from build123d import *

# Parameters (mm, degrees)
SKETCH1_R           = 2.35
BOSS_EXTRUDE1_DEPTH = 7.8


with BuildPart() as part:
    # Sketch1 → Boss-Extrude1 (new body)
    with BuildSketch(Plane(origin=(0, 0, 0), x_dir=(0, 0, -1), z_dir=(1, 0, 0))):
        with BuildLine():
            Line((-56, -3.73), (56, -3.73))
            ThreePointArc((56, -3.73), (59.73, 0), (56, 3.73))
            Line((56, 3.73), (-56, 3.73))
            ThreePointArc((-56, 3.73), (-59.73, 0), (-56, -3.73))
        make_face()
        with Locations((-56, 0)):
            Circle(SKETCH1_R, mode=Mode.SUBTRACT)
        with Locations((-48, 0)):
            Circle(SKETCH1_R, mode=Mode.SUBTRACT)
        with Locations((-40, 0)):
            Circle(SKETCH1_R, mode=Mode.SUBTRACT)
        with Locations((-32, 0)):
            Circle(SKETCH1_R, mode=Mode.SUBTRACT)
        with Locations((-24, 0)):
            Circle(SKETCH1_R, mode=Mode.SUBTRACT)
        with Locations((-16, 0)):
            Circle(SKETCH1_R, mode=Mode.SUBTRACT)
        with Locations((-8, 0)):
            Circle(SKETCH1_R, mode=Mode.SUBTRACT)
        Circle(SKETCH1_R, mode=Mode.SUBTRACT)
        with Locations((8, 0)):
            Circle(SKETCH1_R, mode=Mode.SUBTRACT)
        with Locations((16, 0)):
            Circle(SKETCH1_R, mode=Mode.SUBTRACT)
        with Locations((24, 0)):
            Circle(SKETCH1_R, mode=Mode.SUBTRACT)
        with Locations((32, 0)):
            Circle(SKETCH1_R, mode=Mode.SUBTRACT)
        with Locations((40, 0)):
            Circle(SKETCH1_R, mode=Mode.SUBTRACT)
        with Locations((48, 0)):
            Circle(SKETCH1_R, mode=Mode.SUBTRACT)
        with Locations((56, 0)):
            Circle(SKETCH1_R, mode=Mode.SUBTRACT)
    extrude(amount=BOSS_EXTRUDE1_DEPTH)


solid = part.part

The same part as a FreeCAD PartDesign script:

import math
import FreeCAD as App
import Part
import Sketcher
Q = App.Units.Quantity

doc = App.newDocument("Part")
params = doc.addObject("Spreadsheet::Sheet", "Params")
for row, (alias, value) in enumerate([
    ("sketch1_diameter", "4.7 mm"),
    ("sketch1_height", "112 mm"),
    ("sketch1_radius", "3.73 mm"),
    ("pad1_length", "7.8 mm"),
], start=1):
    params.set(f"A{row}", alias)
    params.set(f"B{row}", "=" + value)
    params.setAlias(f"B{row}", alias)

body = doc.addObject("PartDesign::Body", "Body")

sketch1 = body.newObject("Sketcher::SketchObject", "Sketch")
sketch1.AttachmentSupport = (doc.getObject("YZ_Plane"), [""])
sketch1.MapMode = "FlatFace"
sketch1.addGeometry([
    Part.LineSegment(App.Vector(-3.7, 56, 0), App.Vector(-3.7, -56, 0)),
    Part.ArcOfCircle(Part.Circle(App.Vector(0, -56, 0), App.Vector(0, 0, 1), 3.7), math.radians(180), math.radians(360)),
    Part.LineSegment(App.Vector(3.7, -56, 0), App.Vector(3.7, 56, 0)),
    Part.ArcOfCircle(Part.Circle(App.Vector(0, 56, 0), App.Vector(0, 0, 1), 3.7), math.radians(0), math.radians(180)),
    Part.Circle(App.Vector(0, 56, 0), App.Vector(0, 0, 1), 2.4),
    Part.Circle(App.Vector(0, 48, 0), App.Vector(0, 0, 1), 2.4),
    Part.Circle(App.Vector(0, 40, 0), App.Vector(0, 0, 1), 2.4),
    Part.Circle(App.Vector(0, 32, 0), App.Vector(0, 0, 1), 2.4),
    Part.Circle(App.Vector(0, 24, 0), App.Vector(0, 0, 1), 2.4),
    Part.Circle(App.Vector(0, 16, 0), App.Vector(0, 0, 1), 2.4),
    Part.Circle(App.Vector(0, 8, 0), App.Vector(0, 0, 1), 2.4),
    Part.Circle(App.Vector(0, 0, 0), App.Vector(0, 0, 1), 2.4),
    Part.Circle(App.Vector(0, -8, 0), App.Vector(0, 0, 1), 2.4),
    Part.Circle(App.Vector(0, -16, 0), App.Vector(0, 0, 1), 2.4),
    Part.Circle(App.Vector(0, -24, 0), App.Vector(0, 0, 1), 2.4),
    Part.Circle(App.Vector(0, -32, 0), App.Vector(0, 0, 1), 2.4),
    Part.Circle(App.Vector(0, -40, 0), App.Vector(0, 0, 1), 2.4),
    Part.Circle(App.Vector(0, -48, 0), App.Vector(0, 0, 1), 2.4),
    Part.Circle(App.Vector(0, -56, 0), App.Vector(0, 0, 1), 2.4),
], False)
sketch1.addConstraint([
    Sketcher.Constraint("Tangent", 0, 2, 1, 1),
    Sketcher.Constraint("Tangent", 1, 2, 2, 1),
    Sketcher.Constraint("Tangent", 2, 2, 3, 1),
    Sketcher.Constraint("Tangent", 3, 2, 0, 1),
    Sketcher.Constraint("Vertical", 0),
    Sketcher.Constraint("Vertical", 2),
    Sketcher.Constraint("Coincident", 11, 3, -1, 1),
    Sketcher.Constraint("Coincident", 4, 3, 3, 3),
    Sketcher.Constraint("Coincident", 18, 3, 1, 3),
    Sketcher.Constraint("Equal", 4, 5),
    Sketcher.Constraint("Equal", 5, 6),
    Sketcher.Constraint("Equal", 6, 7),
    Sketcher.Constraint("Equal", 7, 8),
    Sketcher.Constraint("Equal", 8, 9),
    Sketcher.Constraint("Equal", 9, 10),
    Sketcher.Constraint("Equal", 10, 11),
    Sketcher.Constraint("Equal", 11, 12),
    Sketcher.Constraint("Equal", 12, 13),
    Sketcher.Constraint("Equal", 13, 14),
    Sketcher.Constraint("Equal", 14, 15),
    Sketcher.Constraint("Equal", 15, 16),
    Sketcher.Constraint("Equal", 16, 17),
    Sketcher.Constraint("Equal", 17, 18),
    Sketcher.Constraint("Symmetric", 1, 3, 3, 3, -1, 1),
    Sketcher.Constraint("Symmetric", 10, 3, 12, 3, -1, 1),
    Sketcher.Constraint("Symmetric", 9, 3, 13, 3, -1, 1),
    Sketcher.Constraint("Symmetric", 8, 3, 14, 3, -1, 1),
    Sketcher.Constraint("Symmetric", 7, 3, 15, 3, -1, 1),
    Sketcher.Constraint("Symmetric", 6, 3, 16, 3, -1, 1),
    Sketcher.Constraint("Symmetric", 5, 3, 17, 3, -1, 1),
    Sketcher.Constraint("PointOnObject", 5, 3, -2),
    Sketcher.Constraint("PointOnObject", 6, 3, -2),
    Sketcher.Constraint("PointOnObject", 7, 3, -2),
    Sketcher.Constraint("PointOnObject", 8, 3, -2),
    Sketcher.Constraint("PointOnObject", 9, 3, -2),
    Sketcher.Constraint("PointOnObject", 10, 3, -2),
    Sketcher.Constraint("Diameter", 4, Q("4.7 mm")),
    Sketcher.Constraint("DistanceY", 0, 2, 0, 1, Q("112 mm")),
    Sketcher.Constraint("Radius", 1, Q("3.73 mm")),
    Sketcher.Constraint("DistanceY", -1, 1, 5, 3, Q("48 mm")),
    Sketcher.Constraint("DistanceY", -1, 1, 6, 3, Q("40 mm")),
    Sketcher.Constraint("DistanceY", -1, 1, 7, 3, Q("32 mm")),
    Sketcher.Constraint("DistanceY", -1, 1, 8, 3, Q("24 mm")),
    Sketcher.Constraint("DistanceY", -1, 1, 9, 3, Q("16 mm")),
    Sketcher.Constraint("DistanceY", -1, 1, 10, 3, Q("8 mm")),
])
sketch1.setExpression("Constraints[36]", "Params.sketch1_diameter")
sketch1.setExpression("Constraints[37]", "Params.sketch1_height")
sketch1.setExpression("Constraints[38]", "Params.sketch1_radius")
pad1 = body.newObject("PartDesign::Pad", "Pad")
pad1.Profile = sketch1
pad1.setExpression("Length", "Params.pad1_length")

doc.recompute()
